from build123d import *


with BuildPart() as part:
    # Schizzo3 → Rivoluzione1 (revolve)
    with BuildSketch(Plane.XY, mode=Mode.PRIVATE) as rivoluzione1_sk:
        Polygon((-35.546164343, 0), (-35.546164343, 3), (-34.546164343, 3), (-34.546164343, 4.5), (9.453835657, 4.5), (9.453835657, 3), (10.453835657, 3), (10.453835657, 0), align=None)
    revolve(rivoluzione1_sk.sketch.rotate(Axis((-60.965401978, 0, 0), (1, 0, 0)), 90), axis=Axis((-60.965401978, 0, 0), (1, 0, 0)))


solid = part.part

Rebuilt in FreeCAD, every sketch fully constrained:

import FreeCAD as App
import Part
import Sketcher
from FreeCAD import Vector
Q = App.Units.Quantity

doc = App.newDocument("Part")
body = doc.addObject("PartDesign::Body", "Body")

# Sketch on XY plane
sketch1 = body.newObject("Sketcher::SketchObject", "Sketch")
sketch1.AttachmentSupport = (doc.getObject("XY_Plane"), [""])
sketch1.MapMode = "FlatFace"
sketch1.addGeometry([
    Part.LineSegment(Vector(-35.546164, 3, 0), Vector(-35.546164, 0, 0)),  # 0
    Part.LineSegment(Vector(-35.546164, 0, 0), Vector(10.453836, 0, 0)),  # 1
    Part.LineSegment(Vector(10.453836, 0, 0), Vector(10.453836, 3, 0)),  # 2
    Part.LineSegment(Vector(10.453836, 3, 0), Vector(9.453836, 3, 0)),  # 3
    Part.LineSegment(Vector(9.453836, 3, 0), Vector(9.453836, 4.5, 0)),  # 4
    Part.LineSegment(Vector(9.453836, 4.5, 0), Vector(-34.546164, 4.5, 0)),  # 5
    Part.LineSegment(Vector(-34.546164, 4.5, 0), Vector(-34.546164, 3, 0)),  # 6
    Part.LineSegment(Vector(-34.546164, 3, 0), Vector(-35.546164, 3, 0)),  # 7
], False)
sketch1.addConstraint([
    Sketcher.Constraint("Coincident", 0, 2, 1, 1),
    Sketcher.Constraint("Coincident", 1, 2, 2, 1),
    Sketcher.Constraint("Coincident", 2, 2, 3, 1),
    Sketcher.Constraint("Coincident", 3, 2, 4, 1),
    Sketcher.Constraint("Coincident", 4, 2, 5, 1),
    Sketcher.Constraint("Coincident", 5, 2, 6, 1),
    Sketcher.Constraint("Coincident", 6, 2, 7, 1),
    Sketcher.Constraint("Coincident", 7, 2, 0, 1),
    Sketcher.Constraint("Vertical", 0),
    Sketcher.Constraint("Horizontal", 1),
    Sketcher.Constraint("Vertical", 2),
    Sketcher.Constraint("Horizontal", 3),
    Sketcher.Constraint("Vertical", 4),
    Sketcher.Constraint("Horizontal", 5),
    Sketcher.Constraint("Vertical", 6),
    Sketcher.Constraint("Horizontal", 7),
    Sketcher.Constraint("PointOnObject", 0, 2, -1),
    Sketcher.Constraint("Horizontal", 3, 2, 6, 2),
    Sketcher.Constraint("Equal", 3, 7),
    Sketcher.Constraint("DistanceX", 1, 1, 1, 2, Q("46 mm")),
    Sketcher.Constraint("DistanceX", 3, 2, 3, 1, Q("1 mm")),
    Sketcher.Constraint("DistanceY", 0, 2, 0, 1, Q("3 mm")),
    Sketcher.Constraint("DistanceY", 4, 1, 4, 2, Q("1.5 mm")),
    Sketcher.Constraint("DistanceX", 0, 2, -1, 1, Q("35.546164 mm")),
])
revolution = body.newObject("PartDesign::Revolution", "Revolution")
revolution.Profile = sketch1
revolution.ReferenceAxis = (sketch1, ["H_Axis"])
revolution.Angle = 360

doc.recompute()
